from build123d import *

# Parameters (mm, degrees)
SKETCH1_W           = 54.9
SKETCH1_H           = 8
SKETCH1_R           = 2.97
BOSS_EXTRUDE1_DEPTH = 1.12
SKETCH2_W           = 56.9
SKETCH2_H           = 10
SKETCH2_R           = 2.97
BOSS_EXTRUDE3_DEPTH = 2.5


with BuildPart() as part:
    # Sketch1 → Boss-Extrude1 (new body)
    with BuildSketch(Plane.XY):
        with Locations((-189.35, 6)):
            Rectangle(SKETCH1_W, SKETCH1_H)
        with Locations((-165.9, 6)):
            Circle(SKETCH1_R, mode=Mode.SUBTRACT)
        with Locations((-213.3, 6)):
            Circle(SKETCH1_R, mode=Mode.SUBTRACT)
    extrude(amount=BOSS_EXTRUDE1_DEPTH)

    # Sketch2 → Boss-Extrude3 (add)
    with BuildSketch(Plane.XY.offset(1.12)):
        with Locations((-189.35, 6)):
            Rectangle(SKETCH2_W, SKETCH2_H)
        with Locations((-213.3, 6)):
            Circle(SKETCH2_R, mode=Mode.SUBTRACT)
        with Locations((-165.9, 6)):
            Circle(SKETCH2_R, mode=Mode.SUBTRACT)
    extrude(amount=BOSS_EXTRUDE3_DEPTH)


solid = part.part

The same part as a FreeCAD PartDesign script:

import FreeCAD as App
import Part
import Sketcher
from FreeCAD import Vector


def add_polygon(sketch, points):
    """Adds a closed chain of lines whose ends are joined by coincident constraints."""
    first, n = sketch.GeometryCount, len(points)
    for a, b in zip(points, points[1:] + points[:1]):
        sketch.addGeometry(Part.LineSegment(App.Vector(*a, 0), App.Vector(*b, 0)), False)
    for i in range(n):
        sketch.addConstraint(Sketcher.Constraint("Coincident", first + i, 2, first + (i + 1) % n, 1))

doc = App.newDocument("Part")
body = doc.addObject("PartDesign::Body", "Body")

# Sketch on XY plane
sketch1 = body.newObject("Sketcher::SketchObject", "Sketch")
sketch1.AttachmentSupport = (doc.getObject("XY_Plane"), [""])
sketch1.MapMode = "FlatFace"
add_polygon(sketch1, [(-216.8, 10), (-216.8, 2), (-161.9, 2), (-161.9, 10)])  # lines 0-3
sketch1.addGeometry(Part.Circle(Vector(-213.3, 6, 0), Vector(0, 0, 1), 2.97), False)  # 4
sketch1.addGeometry(Part.Circle(Vector(-165.9, 6, 0), Vector(0, 0, 1), 2.97), False)  # 5
sketch1.addConstraint(Sketcher.Constraint("Vertical", 0))
sketch1.addConstraint(Sketcher.Constraint("Horizontal", 1))
sketch1.addConstraint(Sketcher.Constraint("Vertical", 2))
sketch1.addConstraint(Sketcher.Constraint("Horizontal", 3))
sketch1.addConstraint(Sketcher.Constraint("Equal", 4, 5))
sketch1.addConstraint(Sketcher.Constraint("Horizontal", 4, 3, 5, 3))
sketch1.addConstraint(Sketcher.Constraint("Diameter", 4, 5.94))
sketch1.addConstraint(Sketcher.Constraint("DistanceY", 0, 2, 0, 1, 8.0))
sketch1.addConstraint(Sketcher.Constraint("DistanceX", 1, 1, 1, 2, 54.9))
sketch1.addConstraint(Sketcher.Constraint("DistanceY", -1, 1, 4, 3, 6.0))
sketch1.addConstraint(Sketcher.Constraint("DistanceY", -1, 1, 0, 2, 2.0))
sketch1.addConstraint(Sketcher.Constraint("DistanceX", 5, 3, 1, 2, 4.0))
sketch1.addConstraint(Sketcher.Constraint("DistanceX", 4, 3, -1, 1, 213.3))
sketch1.addConstraint(Sketcher.Constraint("DistanceX", 5, 3, -1, 1, 165.9))
pad1 = body.newObject("PartDesign::Pad", "Pad")
pad1.Profile = sketch1
pad1.Length = 1.12

# Sketch on XY plane
sketch2 = body.newObject("Sketcher::SketchObject", "Sketch001")
sketch2.AttachmentSupport = (doc.getObject("XY_Plane"), [""])
sketch2.MapMode = "FlatFace"
sketch2.AttachmentOffset = App.Placement(Vector(0, 0, 1.12), App.Rotation())
add_polygon(sketch2, [(-217.8, 11), (-217.8, 1), (-160.9, 1), (-160.9, 11)])  # lines 0-3
sketch2.addGeometry(Part.Circle(Vector(-213.3, 6, 0), Vector(0, 0, 1), 2.97), False)  # 4
sketch2.addGeometry(Part.Circle(Vector(-165.9, 6, 0), Vector(0, 0, 1), 2.97), False)  # 5
sketch2.addConstraint(Sketcher.Constraint("Vertical", 0))
sketch2.addConstraint(Sketcher.Constraint("Horizontal", 1))
sketch2.addConstraint(Sketcher.Constraint("Vertical", 2))
sketch2.addConstraint(Sketcher.Constraint("Horizontal", 3))
sketch2.addConstraint(Sketcher.Constraint("Equal", 4, 5))
sketch2.addConstraint(Sketcher.Constraint("Horizontal", 4, 3, 5, 3))
sketch2.addConstraint(Sketcher.Constraint("Diameter", 4, 5.94))
sketch2.addConstraint(Sketcher.Constraint("DistanceY", 0, 2, 0, 1, 10.0))
sketch2.addConstraint(Sketcher.Constraint("DistanceX", 1, 1, 1, 2, 56.9))
sketch2.addConstraint(Sketcher.Constraint("DistanceY", -1, 1, 4, 3, 6.0))
sketch2.addConstraint(Sketcher.Constraint("DistanceY", -1, 1, 0, 2, 1.0))
sketch2.addConstraint(Sketcher.Constraint("DistanceX", 5, 3, 1, 2, 5.0))
sketch2.addConstraint(Sketcher.Constraint("DistanceX", 4, 3, -1, 1, 213.3))
sketch2.addConstraint(Sketcher.Constraint("DistanceX", 5, 3, -1, 1, 165.9))
pad2 = body.newObject("PartDesign::Pad", "Pad001")
pad2.Profile = sketch2
pad2.Length = 2.5

doc.recompute()
